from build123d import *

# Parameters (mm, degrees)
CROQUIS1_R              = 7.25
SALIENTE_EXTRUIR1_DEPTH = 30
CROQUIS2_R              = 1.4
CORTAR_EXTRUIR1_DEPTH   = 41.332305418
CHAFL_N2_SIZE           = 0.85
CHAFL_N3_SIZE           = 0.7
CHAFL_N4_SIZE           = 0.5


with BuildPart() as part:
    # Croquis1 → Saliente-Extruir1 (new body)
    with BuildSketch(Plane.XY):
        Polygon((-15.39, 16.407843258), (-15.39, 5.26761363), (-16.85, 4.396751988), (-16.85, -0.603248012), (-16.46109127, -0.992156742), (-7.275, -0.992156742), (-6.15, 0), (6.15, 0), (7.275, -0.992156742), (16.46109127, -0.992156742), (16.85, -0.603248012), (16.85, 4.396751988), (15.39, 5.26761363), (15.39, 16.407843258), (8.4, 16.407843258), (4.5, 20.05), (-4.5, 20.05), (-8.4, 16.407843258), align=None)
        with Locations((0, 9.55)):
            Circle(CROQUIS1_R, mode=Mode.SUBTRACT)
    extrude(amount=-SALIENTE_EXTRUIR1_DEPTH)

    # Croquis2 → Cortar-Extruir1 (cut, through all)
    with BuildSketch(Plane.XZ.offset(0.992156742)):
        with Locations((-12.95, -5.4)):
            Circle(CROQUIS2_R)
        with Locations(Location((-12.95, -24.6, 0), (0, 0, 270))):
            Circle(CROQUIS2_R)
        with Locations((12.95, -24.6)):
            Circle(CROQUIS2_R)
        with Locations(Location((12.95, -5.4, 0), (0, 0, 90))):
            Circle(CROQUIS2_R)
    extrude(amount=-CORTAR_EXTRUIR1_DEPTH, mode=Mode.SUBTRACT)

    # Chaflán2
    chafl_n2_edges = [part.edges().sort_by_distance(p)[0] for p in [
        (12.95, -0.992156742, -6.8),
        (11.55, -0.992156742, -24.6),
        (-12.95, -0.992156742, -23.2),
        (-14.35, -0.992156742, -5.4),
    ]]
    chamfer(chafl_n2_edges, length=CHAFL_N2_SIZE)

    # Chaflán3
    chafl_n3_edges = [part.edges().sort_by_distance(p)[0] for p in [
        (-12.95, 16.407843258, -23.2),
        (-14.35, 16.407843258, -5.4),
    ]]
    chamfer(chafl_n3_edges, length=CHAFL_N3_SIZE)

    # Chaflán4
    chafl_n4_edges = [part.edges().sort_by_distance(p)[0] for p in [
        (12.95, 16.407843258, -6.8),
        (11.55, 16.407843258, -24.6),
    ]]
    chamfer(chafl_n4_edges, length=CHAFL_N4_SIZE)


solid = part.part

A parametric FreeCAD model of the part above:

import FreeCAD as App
import Part
import Sketcher
Q = App.Units.Quantity


def edges_at(feature, points):
    """Names of the edges that pass closest to the given points."""
    edges = feature.Shape.Edges
    near = lambda p: min(range(len(edges)), key=lambda i: edges[i].distToShape(Part.Vertex(*p))[0])
    return sorted({f"Edge{near(p) + 1}" for p in points})


def add_polygon(sketch, points):
    """Adds a closed chain of lines whose ends are joined by coincident constraints."""
    first, n = sketch.GeometryCount, len(points)
    for a, b in zip(points, points[1:] + points[:1]):
        sketch.addGeometry(Part.LineSegment(App.Vector(*a, 0), App.Vector(*b, 0)), False)
    for i in range(n):
        sketch.addConstraint(Sketcher.Constraint("Coincident", first + i, 2, first + (i + 1) % n, 1))

doc = App.newDocument("Part")
body = doc.addObject("PartDesign::Body", "Body")

# Sketch on XY plane
sketch1 = doc.addObject("Sketcher::SketchObject", "Sketch")
body.addObject(sketch1)
sketch1.AttachmentSupport = (doc.XY_Plane, [""])
sketch1.MapMode = "FlatFace"
add_polygon(sketch1, [(-15.4, 16.4), (-15.4, 5.3), (-16.9, 4.4), (-16.9, -0.6), (-16.5, -1), (-7.3, -1), (-6.2, 0), (6.2, 0), (7.3, -1), (16.5, -1), (16.9, -0.6), (16.9, 4.4), (15.4, 5.3), (15.4, 16.4), (8.4, 16.4), (4.5, 20.1), (-4.5, 20.1), (-8.4, 16.4)])  # lines 0-17
sketch1.addGeometry(Part.Circle(App.Vector(0, 9.6, 0), App.Vector(0, 0, 1), 7.2), False)  # 18
sketch1.addConstraint([
    Sketcher.Constraint("Vertical", 0),
    Sketcher.Constraint("Vertical", 2),
    Sketcher.Constraint("Horizontal", 4),
    Sketcher.Constraint("Horizontal", 6),
    Sketcher.Constraint("Horizontal", 8),
    Sketcher.Constraint("Vertical", 10),
    Sketcher.Constraint("Vertical", 12),
    Sketcher.Constraint("Horizontal", 13),
    Sketcher.Constraint("Horizontal", 15),
    Sketcher.Constraint("Horizontal", 17),
    Sketcher.Constraint("Symmetric", 5, 2, 6, 2, -1, 1),
    Sketcher.Constraint("Symmetric", 4, 2, 7, 2, -2),
    Sketcher.Constraint("Symmetric", 2, 2, 9, 2, -2),
    Sketcher.Constraint("Symmetric", 0, 2, 11, 2, -2),
    Sketcher.Constraint("Symmetric", 13, 2, 16, 2, -2),
    Sketcher.Constraint("PointOnObject", 18, 3, -2),
    Sketcher.Constraint("Perpendicular", 3, 9),
    Sketcher.Constraint("Horizontal", 1, 2, 10, 2),
    Sketcher.Constraint("Equal", 4, 8),
    Sketcher.Constraint("Equal", 14, 16),
    Sketcher.Constraint("Diameter", 18, Q("14.5 mm")),
    Sketcher.Constraint("DistanceX", 15, 2, 15, 1, Q("9 mm")),
    Sketcher.Constraint("DistanceY", 2, 2, 2, 1, Q("5 mm")),
    Sketcher.Constraint("DistanceX", 6, 1, 6, 2, Q("12.3 mm")),
    Sketcher.Constraint("DistanceX", 5, 2, 9, 2, Q("23 mm")),
    Sketcher.Constraint("Distance", 1, Q("1.7 mm")),
    Sketcher.Constraint("Distance", 5, Q("1.5 mm")),
    Sketcher.Constraint("DistanceX", 13, 2, 13, 1, Q("6.99 mm")),
    Sketcher.Constraint("DistanceX", -1, 1, 13, 2, Q("8.4 mm")),
    Sketcher.Constraint("DistanceY", 8, 2, 12, 2, Q("17.4 mm")),
    Sketcher.Constraint("DistanceY", 18, 3, 14, 2, Q("10.5 mm")),
    Sketcher.Constraint("Distance", 3, Q("0.55 mm")),
    Sketcher.Constraint("DistanceY", -1, 1, 18, 3, Q("9.55 mm")),
    Sketcher.Constraint("DistanceX", 4, 2, 7, 2, Q("14.55 mm")),
])
pad1 = doc.addObject("PartDesign::Pad", "Pad")
body.addObject(pad1)
pad1.Profile = sketch1
pad1.Length = 30
pad1.Reversed = True

# Sketch on XZ plane
sketch2 = doc.addObject("Sketcher::SketchObject", "Sketch001")
body.addObject(sketch2)
sketch2.AttachmentSupport = (doc.XZ_Plane, [""])
sketch2.MapMode = "FlatFace"
sketch2.AttachmentOffset = App.Placement(App.Vector(0, 0, 0.992157), App.Rotation())
sketch2.addGeometry([
    Part.Circle(App.Vector(-12.9, -5.4, 0), App.Vector(0, 0, 1), 1.4),
    Part.Circle(App.Vector(-12.9, -24.6, 0), App.Vector(0, 0, 1), 1.4),
    Part.Circle(App.Vector(12.9, -24.6, 0), App.Vector(0, 0, 1), 1.4),
    Part.Circle(App.Vector(12.9, -5.4, 0), App.Vector(0, 0, 1), 1.4),
], False)
sketch2.addConstraint([
    Sketcher.Constraint("Equal", 0, 1),
    Sketcher.Constraint("Equal", 1, 2),
    Sketcher.Constraint("Equal", 2, 3),
    Sketcher.Constraint("Symmetric", 1, 3, 2, 3, -2),
    Sketcher.Constraint("Symmetric", 0, 3, 3, 3, -2),
    Sketcher.Constraint("Vertical", 0, 3, 1, 3),
    Sketcher.Constraint("Diameter", 0, Q("2.8 mm")),
    Sketcher.Constraint("DistanceY", 0, 3, -1, 1, Q("5.4 mm")),
    Sketcher.Constraint("DistanceY", 1, 3, -1, 1, Q("24.6 mm")),
    Sketcher.Constraint("DistanceX", 1, 3, 2, 3, Q("25.9 mm")),
])
pocket1 = doc.addObject("PartDesign::Pocket", "Pocket")
body.addObject(pocket1)
pocket1.Profile = sketch2
pocket1.Type = "ThroughAll"
doc.recompute()

chamfer = doc.addObject("PartDesign::Chamfer", "Chamfer")
body.addObject(chamfer)
chamfer.Base = (pocket1, edges_at(pocket1, [
    (12.95, -0.992, -6.8),
    (11.55, -0.992, -24.6),
    (-12.95, -0.992, -23.2),
    (-14.35, -0.992, -5.4),
]))
chamfer.Size = 0.85
doc.recompute()

chamfer2 = doc.addObject("PartDesign::Chamfer", "Chamfer001")
body.addObject(chamfer2)
chamfer2.Base = (chamfer, edges_at(chamfer, [(-12.95, 16.408, -23.2), (-14.35, 16.408, -5.4)]))
chamfer2.Size = 0.7
doc.recompute()

chamfer3 = doc.addObject("PartDesign::Chamfer", "Chamfer002")
body.addObject(chamfer3)
chamfer3.Base = (chamfer2, edges_at(chamfer2, [(12.95, 16.408, -6.8), (11.55, 16.408, -24.6)]))
chamfer3.Size = 0.5

doc.recompute()
